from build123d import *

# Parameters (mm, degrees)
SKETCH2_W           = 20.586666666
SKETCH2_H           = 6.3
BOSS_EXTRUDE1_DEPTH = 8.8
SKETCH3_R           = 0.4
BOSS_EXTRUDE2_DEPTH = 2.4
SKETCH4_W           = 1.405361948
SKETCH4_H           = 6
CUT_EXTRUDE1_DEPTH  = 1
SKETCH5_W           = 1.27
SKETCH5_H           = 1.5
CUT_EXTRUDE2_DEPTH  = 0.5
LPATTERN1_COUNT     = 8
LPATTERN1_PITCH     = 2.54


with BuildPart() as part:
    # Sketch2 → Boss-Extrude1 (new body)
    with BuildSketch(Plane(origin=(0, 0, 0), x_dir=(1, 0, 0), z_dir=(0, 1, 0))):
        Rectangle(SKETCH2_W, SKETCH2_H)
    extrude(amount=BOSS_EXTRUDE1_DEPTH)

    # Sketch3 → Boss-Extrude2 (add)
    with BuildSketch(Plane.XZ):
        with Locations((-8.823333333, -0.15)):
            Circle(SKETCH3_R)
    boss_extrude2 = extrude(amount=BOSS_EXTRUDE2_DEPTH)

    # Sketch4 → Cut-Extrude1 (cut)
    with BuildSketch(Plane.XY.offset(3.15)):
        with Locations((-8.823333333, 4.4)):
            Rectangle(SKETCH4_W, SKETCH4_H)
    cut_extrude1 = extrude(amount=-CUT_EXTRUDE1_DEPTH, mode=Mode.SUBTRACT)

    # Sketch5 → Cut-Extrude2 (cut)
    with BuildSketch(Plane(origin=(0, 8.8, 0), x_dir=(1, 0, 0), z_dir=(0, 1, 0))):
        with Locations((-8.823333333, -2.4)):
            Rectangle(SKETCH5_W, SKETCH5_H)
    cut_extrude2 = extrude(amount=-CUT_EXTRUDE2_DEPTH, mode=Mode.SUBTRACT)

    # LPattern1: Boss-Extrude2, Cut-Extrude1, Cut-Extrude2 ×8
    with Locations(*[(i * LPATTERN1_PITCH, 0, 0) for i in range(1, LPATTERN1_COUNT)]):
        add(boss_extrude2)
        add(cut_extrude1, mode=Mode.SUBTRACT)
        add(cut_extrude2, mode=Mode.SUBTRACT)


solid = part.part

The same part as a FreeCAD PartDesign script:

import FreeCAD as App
import Part
import Sketcher
Q = App.Units.Quantity


def add_polygon(sketch, points):
    """Adds a closed chain of lines whose ends are joined by coincident constraints."""
    first, n = sketch.GeometryCount, len(points)
    for a, b in zip(points, points[1:] + points[:1]):
        sketch.addGeometry(Part.LineSegment(App.Vector(*a, 0), App.Vector(*b, 0)), False)
    for i in range(n):
        sketch.addConstraint(Sketcher.Constraint("Coincident", first + i, 2, first + (i + 1) % n, 1))

doc = App.newDocument("Part")
body = doc.addObject("PartDesign::Body", "Body")

# Sketch on XZ plane
sketch1 = body.newObject("Sketcher::SketchObject", "Sketch")
sketch1.AttachmentSupport = (doc.getObject("XZ_Plane"), [""])
sketch1.MapMode = "FlatFace"
add_polygon(sketch1, [(-10, -3), (-10, 3), (10, 3), (10, -3)])  # lines 0-3
sketch1.addConstraint([
    Sketcher.Constraint("Vertical", 0),
    Sketcher.Constraint("Horizontal", 1),
    Sketcher.Constraint("Vertical", 2),
    Sketcher.Constraint("Horizontal", 3),
    Sketcher.Constraint("Symmetric", 0, 2, 2, 2, -1, 1),
    Sketcher.Constraint("DistanceY", 0, 1, 0, 2, Q("6.3 mm")),
    Sketcher.Constraint("DistanceX", 1, 1, 1, 2, Q("20.586667 mm")),
])
pad1 = body.newObject("PartDesign::Pad", "Pad")
pad1.Profile = sketch1
pad1.Length = 8.8
pad1.Reversed = True

# Sketch on XZ plane
sketch2 = body.newObject("Sketcher::SketchObject", "Sketch001")
sketch2.AttachmentSupport = (doc.getObject("XZ_Plane"), [""])
sketch2.MapMode = "FlatFace"
sketch2.addGeometry(Part.Circle(App.Vector(-8.82, -0.15, 0), App.Vector(0, 0, 1), 0.4), False)
sketch2.addConstraint([
    Sketcher.Constraint("Diameter", 0, Q("0.8 mm")),
    Sketcher.Constraint("DistanceY", 0, 3, -1, 1, Q("0.15 mm")),
    Sketcher.Constraint("DistanceX", 0, 3, -1, 1, Q("8.823333 mm")),
])
pad2 = body.newObject("PartDesign::Pad", "Pad001")
pad2.Profile = sketch2
pad2.Length = 2.4

# Sketch on XY plane
sketch3 = body.newObject("Sketcher::SketchObject", "Sketch002")
sketch3.AttachmentSupport = (doc.getObject("XY_Plane"), [""])
sketch3.MapMode = "FlatFace"
sketch3.AttachmentOffset = App.Placement(App.Vector(0, 0, 3.15), App.Rotation())
add_polygon(sketch3, [(-9.5, 7.4), (-9.5, 1.4), (-8.1, 1.4), (-8.1, 7.4)])  # lines 0-3
sketch3.addConstraint([
    Sketcher.Constraint("Vertical", 0),
    Sketcher.Constraint("Horizontal", 1),
    Sketcher.Constraint("Vertical", 2),
    Sketcher.Constraint("Horizontal", 3),
    Sketcher.Constraint("DistanceY", 0, 2, 0, 1, Q("6 mm")),
    Sketcher.Constraint("DistanceY", -1, 1, 0, 2, Q("1.4 mm")),
    Sketcher.Constraint("DistanceX", 1, 1, 1, 2, Q("1.405362 mm")),
    Sketcher.Constraint("DistanceX", 0, 2, -1, 1, Q("9.526014 mm")),
])
pocket1 = body.newObject("PartDesign::Pocket", "Pocket")
pocket1.Profile = sketch3
pocket1.Length = 1

# Sketch on XZ plane
sketch4 = body.newObject("Sketcher::SketchObject", "Sketch003")
sketch4.AttachmentSupport = (doc.getObject("XZ_Plane"), [""])
sketch4.MapMode = "FlatFace"
sketch4.AttachmentOffset = App.Placement(App.Vector(0, 0, -8.8), App.Rotation())
add_polygon(sketch4, [(-9.5, 1.6), (-9.5, 3.1), (-8.2, 3.1), (-8.2, 1.6)])  # lines 0-3
sketch4.addConstraint([
    Sketcher.Constraint("Vertical", 0),
    Sketcher.Constraint("Horizontal", 1),
    Sketcher.Constraint("Vertical", 2),
    Sketcher.Constraint("Horizontal", 3),
    Sketcher.Constraint("DistanceY", 0, 1, 0, 2, Q("1.5 mm")),
    Sketcher.Constraint("DistanceX", 1, 1, 1, 2, Q("1.27 mm")),
    Sketcher.Constraint("DistanceY", -1, 1, 0, 2, Q("3.15 mm")),
    Sketcher.Constraint("DistanceX", 0, 2, -1, 1, Q("9.458333 mm")),
])
pocket2 = body.newObject("PartDesign::Pocket", "Pocket001")
pocket2.Profile = sketch4
pocket2.Length = 0.5
pocket2.Reversed = True
doc.recompute()

linearpattern = body.newObject("PartDesign::LinearPattern", "LinearPattern")
linearpattern.Originals = [pad2, pocket1, pocket2]
linearpattern.Direction = (doc.getObject("X_Axis"), [""])
linearpattern.Mode = "offset"
linearpattern.Offset = 2.54
linearpattern.Occurrences = 8
body.Tip = linearpattern

doc.recompute()
